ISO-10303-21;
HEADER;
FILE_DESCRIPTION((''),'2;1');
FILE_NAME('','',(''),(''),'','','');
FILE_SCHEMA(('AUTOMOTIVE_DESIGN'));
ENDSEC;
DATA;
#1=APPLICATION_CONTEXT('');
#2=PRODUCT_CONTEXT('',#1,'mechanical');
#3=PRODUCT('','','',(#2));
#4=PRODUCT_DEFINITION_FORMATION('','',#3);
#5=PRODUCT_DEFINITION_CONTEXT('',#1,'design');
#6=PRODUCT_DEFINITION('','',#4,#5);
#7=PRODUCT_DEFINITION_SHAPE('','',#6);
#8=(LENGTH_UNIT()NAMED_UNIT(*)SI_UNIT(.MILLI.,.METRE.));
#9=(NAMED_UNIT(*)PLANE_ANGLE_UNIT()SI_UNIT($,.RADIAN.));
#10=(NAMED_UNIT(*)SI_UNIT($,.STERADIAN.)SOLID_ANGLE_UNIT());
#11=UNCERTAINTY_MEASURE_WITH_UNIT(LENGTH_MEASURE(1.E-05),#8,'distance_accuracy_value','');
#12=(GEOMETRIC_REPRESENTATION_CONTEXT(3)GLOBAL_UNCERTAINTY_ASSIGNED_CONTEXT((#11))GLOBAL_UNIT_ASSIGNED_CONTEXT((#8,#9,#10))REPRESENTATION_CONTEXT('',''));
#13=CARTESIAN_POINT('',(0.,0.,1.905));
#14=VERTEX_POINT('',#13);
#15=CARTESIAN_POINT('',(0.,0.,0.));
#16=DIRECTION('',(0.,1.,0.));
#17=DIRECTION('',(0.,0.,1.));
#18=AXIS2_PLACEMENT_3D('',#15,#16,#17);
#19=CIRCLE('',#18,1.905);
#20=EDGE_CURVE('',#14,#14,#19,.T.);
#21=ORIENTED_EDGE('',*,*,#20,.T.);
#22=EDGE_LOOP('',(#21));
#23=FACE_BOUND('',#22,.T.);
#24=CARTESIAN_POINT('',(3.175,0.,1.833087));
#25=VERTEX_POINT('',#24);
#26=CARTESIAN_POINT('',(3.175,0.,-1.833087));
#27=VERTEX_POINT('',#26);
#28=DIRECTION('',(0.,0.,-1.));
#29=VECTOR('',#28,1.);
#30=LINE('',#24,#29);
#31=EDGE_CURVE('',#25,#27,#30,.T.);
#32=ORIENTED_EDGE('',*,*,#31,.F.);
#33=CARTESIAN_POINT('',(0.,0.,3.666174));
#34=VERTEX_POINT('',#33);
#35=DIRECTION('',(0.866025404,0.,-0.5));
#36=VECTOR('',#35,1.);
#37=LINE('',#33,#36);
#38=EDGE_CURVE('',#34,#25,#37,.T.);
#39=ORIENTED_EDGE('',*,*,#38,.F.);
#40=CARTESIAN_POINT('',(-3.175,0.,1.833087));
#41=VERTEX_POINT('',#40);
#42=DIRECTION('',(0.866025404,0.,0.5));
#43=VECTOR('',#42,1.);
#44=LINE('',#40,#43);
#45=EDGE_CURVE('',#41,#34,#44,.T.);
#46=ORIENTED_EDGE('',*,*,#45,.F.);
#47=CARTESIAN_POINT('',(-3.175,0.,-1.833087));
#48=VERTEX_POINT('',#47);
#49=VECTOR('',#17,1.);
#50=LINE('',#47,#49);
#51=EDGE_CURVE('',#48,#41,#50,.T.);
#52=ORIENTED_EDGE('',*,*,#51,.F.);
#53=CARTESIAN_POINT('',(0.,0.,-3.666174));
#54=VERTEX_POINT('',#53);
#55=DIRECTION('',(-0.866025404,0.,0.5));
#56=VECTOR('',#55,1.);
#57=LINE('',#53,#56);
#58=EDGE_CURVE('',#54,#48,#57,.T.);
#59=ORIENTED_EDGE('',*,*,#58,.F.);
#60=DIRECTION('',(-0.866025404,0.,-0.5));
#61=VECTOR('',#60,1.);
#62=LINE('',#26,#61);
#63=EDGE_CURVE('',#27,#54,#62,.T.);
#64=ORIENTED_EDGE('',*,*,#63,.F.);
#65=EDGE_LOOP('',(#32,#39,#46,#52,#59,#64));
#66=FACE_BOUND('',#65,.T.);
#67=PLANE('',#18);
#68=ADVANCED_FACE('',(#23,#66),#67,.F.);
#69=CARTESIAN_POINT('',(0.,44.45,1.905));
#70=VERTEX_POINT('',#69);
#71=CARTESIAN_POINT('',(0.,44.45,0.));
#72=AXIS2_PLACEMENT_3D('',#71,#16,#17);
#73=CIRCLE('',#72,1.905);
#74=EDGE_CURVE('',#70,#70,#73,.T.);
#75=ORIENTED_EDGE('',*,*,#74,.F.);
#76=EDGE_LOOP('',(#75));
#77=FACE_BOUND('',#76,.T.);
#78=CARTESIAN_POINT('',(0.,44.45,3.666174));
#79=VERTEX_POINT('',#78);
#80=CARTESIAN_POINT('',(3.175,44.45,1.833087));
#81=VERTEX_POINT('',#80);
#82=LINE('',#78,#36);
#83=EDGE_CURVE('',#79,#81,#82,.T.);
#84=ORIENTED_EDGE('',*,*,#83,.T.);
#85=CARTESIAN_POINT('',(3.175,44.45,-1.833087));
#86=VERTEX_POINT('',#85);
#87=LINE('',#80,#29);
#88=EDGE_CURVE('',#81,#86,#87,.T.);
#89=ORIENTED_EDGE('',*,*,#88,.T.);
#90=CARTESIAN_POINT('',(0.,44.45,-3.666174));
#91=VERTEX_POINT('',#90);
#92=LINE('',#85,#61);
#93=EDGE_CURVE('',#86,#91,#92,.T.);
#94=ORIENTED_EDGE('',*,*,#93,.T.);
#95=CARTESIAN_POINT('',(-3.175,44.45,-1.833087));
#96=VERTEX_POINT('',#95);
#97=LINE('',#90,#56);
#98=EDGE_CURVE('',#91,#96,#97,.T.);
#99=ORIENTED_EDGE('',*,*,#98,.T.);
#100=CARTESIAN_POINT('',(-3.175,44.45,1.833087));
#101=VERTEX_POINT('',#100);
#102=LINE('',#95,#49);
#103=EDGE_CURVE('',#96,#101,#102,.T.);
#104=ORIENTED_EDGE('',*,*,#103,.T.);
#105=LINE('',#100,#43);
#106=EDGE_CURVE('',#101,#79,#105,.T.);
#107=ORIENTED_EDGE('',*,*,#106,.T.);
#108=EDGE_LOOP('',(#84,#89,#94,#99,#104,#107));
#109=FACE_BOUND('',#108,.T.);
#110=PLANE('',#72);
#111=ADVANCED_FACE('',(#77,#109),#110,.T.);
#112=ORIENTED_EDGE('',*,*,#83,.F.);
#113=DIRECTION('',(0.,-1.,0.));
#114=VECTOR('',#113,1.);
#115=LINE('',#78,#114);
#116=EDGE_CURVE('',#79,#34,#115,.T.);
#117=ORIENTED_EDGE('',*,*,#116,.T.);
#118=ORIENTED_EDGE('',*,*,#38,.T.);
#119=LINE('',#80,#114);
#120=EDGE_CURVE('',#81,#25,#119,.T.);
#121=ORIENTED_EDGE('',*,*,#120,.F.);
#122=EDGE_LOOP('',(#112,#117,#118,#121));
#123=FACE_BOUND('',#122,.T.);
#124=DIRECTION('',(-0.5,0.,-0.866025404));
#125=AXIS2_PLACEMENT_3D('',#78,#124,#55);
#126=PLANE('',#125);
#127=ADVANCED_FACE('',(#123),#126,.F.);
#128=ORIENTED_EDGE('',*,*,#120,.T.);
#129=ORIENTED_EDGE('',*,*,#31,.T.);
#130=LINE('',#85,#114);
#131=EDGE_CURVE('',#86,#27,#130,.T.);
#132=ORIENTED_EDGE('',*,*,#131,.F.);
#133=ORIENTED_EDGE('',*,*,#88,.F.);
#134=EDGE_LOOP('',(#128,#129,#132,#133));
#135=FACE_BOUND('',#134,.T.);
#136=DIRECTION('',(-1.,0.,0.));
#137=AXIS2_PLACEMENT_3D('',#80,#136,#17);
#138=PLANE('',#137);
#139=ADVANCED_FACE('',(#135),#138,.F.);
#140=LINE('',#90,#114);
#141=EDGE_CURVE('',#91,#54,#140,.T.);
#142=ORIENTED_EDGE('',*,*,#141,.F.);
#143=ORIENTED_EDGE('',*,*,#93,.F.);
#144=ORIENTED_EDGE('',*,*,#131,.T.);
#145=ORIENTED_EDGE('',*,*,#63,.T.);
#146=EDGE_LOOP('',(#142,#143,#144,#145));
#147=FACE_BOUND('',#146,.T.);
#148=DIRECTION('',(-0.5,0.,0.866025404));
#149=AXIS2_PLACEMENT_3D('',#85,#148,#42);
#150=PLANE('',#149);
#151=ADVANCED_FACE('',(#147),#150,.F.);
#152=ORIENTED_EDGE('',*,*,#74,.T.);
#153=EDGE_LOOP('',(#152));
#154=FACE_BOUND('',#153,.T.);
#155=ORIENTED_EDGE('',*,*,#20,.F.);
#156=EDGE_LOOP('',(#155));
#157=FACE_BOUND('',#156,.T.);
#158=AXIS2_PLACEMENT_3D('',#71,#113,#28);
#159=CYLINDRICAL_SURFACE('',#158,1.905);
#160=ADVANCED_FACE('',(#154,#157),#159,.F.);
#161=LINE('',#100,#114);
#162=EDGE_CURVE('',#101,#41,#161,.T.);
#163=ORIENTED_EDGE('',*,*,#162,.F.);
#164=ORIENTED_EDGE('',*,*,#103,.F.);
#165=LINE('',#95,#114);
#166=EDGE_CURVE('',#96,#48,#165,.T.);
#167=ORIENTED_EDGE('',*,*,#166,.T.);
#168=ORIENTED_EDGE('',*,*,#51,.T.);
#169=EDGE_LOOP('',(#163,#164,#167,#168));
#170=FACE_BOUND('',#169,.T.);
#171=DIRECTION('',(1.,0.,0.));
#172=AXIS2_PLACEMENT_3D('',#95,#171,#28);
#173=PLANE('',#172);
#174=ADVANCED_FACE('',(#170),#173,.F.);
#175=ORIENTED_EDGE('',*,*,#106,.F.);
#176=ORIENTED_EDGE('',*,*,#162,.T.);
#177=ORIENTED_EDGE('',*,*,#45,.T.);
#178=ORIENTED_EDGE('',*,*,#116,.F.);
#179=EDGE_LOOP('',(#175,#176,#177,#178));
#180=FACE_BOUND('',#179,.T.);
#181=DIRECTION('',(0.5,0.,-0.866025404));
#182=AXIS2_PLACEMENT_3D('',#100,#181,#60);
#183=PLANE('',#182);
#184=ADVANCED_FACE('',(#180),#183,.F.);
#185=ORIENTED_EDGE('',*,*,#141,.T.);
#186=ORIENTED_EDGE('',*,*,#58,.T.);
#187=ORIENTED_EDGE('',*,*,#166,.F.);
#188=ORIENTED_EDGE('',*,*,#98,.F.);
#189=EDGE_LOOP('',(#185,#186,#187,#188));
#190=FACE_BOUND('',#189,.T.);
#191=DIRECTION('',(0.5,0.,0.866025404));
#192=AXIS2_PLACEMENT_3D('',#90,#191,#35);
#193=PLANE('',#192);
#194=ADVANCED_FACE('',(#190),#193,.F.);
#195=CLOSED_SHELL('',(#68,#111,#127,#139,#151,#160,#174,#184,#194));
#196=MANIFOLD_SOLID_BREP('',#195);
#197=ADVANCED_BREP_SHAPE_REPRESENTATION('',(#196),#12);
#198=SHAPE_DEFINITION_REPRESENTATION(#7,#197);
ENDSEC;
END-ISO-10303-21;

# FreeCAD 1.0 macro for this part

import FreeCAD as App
import Part
import Sketcher
Q = App.Units.Quantity


def add_polygon(sketch, points):
    """Adds a closed chain of lines whose ends are joined by coincident constraints."""
    first, n = sketch.GeometryCount, len(points)
    for a, b in zip(points, points[1:] + points[:1]):
        sketch.addGeometry(Part.LineSegment(App.Vector(*a, 0), App.Vector(*b, 0)), False)
    for i in range(n):
        sketch.addConstraint(Sketcher.Constraint("Coincident", first + i, 2, first + (i + 1) % n, 1))

doc = App.newDocument("Part")
body = doc.addObject("PartDesign::Body", "Body")

sketch1 = body.newObject("Sketcher::SketchObject", "Sketch")
sketch1.AttachmentSupport = (doc.getObject("XZ_Plane"), [""])
sketch1.MapMode = "FlatFace"
add_polygon(sketch1, [(0, 3.7), (3.2, 1.8), (3.2, -1.8), (0, -3.7), (-3.2, -1.8), (-3.2, 1.8)])
sketch1.addGeometry(Part.Circle(App.Vector(0, 0, 0), App.Vector(0, 0, 1), 1.9), False)
sketch1.addConstraint([
    Sketcher.Constraint("Vertical", 1),
    Sketcher.Constraint("Vertical", 4),
    Sketcher.Constraint("Coincident", 6, 3, -1, 1),
    Sketcher.Constraint("Symmetric", 0, 2, 3, 2, -1, 1),
    Sketcher.Constraint("Symmetric", 2, 2, 5, 2, -1, 1),
    Sketcher.Constraint("PointOnObject", 2, 2, -2),
    Sketcher.Constraint("Parallel", 2, 5),
    Sketcher.Constraint("Horizontal", 1, 2, 3, 2),
    Sketcher.Constraint("Diameter", 6, Q("0.15 in")),
    Sketcher.Constraint("Angle", 0, Q("-30 deg")),
    Sketcher.Constraint("DistanceX", 3, 2, 1, 2, Q("0.25 in")),
    Sketcher.Constraint("DistanceY", 1, 2, 1, 1, Q("3.666174 mm")),
])
pad1 = body.newObject("PartDesign::Pad", "Pad")
pad1.Profile = sketch1
pad1.Length = Q("1.75 in")
pad1.Reversed = True

doc.recompute()
